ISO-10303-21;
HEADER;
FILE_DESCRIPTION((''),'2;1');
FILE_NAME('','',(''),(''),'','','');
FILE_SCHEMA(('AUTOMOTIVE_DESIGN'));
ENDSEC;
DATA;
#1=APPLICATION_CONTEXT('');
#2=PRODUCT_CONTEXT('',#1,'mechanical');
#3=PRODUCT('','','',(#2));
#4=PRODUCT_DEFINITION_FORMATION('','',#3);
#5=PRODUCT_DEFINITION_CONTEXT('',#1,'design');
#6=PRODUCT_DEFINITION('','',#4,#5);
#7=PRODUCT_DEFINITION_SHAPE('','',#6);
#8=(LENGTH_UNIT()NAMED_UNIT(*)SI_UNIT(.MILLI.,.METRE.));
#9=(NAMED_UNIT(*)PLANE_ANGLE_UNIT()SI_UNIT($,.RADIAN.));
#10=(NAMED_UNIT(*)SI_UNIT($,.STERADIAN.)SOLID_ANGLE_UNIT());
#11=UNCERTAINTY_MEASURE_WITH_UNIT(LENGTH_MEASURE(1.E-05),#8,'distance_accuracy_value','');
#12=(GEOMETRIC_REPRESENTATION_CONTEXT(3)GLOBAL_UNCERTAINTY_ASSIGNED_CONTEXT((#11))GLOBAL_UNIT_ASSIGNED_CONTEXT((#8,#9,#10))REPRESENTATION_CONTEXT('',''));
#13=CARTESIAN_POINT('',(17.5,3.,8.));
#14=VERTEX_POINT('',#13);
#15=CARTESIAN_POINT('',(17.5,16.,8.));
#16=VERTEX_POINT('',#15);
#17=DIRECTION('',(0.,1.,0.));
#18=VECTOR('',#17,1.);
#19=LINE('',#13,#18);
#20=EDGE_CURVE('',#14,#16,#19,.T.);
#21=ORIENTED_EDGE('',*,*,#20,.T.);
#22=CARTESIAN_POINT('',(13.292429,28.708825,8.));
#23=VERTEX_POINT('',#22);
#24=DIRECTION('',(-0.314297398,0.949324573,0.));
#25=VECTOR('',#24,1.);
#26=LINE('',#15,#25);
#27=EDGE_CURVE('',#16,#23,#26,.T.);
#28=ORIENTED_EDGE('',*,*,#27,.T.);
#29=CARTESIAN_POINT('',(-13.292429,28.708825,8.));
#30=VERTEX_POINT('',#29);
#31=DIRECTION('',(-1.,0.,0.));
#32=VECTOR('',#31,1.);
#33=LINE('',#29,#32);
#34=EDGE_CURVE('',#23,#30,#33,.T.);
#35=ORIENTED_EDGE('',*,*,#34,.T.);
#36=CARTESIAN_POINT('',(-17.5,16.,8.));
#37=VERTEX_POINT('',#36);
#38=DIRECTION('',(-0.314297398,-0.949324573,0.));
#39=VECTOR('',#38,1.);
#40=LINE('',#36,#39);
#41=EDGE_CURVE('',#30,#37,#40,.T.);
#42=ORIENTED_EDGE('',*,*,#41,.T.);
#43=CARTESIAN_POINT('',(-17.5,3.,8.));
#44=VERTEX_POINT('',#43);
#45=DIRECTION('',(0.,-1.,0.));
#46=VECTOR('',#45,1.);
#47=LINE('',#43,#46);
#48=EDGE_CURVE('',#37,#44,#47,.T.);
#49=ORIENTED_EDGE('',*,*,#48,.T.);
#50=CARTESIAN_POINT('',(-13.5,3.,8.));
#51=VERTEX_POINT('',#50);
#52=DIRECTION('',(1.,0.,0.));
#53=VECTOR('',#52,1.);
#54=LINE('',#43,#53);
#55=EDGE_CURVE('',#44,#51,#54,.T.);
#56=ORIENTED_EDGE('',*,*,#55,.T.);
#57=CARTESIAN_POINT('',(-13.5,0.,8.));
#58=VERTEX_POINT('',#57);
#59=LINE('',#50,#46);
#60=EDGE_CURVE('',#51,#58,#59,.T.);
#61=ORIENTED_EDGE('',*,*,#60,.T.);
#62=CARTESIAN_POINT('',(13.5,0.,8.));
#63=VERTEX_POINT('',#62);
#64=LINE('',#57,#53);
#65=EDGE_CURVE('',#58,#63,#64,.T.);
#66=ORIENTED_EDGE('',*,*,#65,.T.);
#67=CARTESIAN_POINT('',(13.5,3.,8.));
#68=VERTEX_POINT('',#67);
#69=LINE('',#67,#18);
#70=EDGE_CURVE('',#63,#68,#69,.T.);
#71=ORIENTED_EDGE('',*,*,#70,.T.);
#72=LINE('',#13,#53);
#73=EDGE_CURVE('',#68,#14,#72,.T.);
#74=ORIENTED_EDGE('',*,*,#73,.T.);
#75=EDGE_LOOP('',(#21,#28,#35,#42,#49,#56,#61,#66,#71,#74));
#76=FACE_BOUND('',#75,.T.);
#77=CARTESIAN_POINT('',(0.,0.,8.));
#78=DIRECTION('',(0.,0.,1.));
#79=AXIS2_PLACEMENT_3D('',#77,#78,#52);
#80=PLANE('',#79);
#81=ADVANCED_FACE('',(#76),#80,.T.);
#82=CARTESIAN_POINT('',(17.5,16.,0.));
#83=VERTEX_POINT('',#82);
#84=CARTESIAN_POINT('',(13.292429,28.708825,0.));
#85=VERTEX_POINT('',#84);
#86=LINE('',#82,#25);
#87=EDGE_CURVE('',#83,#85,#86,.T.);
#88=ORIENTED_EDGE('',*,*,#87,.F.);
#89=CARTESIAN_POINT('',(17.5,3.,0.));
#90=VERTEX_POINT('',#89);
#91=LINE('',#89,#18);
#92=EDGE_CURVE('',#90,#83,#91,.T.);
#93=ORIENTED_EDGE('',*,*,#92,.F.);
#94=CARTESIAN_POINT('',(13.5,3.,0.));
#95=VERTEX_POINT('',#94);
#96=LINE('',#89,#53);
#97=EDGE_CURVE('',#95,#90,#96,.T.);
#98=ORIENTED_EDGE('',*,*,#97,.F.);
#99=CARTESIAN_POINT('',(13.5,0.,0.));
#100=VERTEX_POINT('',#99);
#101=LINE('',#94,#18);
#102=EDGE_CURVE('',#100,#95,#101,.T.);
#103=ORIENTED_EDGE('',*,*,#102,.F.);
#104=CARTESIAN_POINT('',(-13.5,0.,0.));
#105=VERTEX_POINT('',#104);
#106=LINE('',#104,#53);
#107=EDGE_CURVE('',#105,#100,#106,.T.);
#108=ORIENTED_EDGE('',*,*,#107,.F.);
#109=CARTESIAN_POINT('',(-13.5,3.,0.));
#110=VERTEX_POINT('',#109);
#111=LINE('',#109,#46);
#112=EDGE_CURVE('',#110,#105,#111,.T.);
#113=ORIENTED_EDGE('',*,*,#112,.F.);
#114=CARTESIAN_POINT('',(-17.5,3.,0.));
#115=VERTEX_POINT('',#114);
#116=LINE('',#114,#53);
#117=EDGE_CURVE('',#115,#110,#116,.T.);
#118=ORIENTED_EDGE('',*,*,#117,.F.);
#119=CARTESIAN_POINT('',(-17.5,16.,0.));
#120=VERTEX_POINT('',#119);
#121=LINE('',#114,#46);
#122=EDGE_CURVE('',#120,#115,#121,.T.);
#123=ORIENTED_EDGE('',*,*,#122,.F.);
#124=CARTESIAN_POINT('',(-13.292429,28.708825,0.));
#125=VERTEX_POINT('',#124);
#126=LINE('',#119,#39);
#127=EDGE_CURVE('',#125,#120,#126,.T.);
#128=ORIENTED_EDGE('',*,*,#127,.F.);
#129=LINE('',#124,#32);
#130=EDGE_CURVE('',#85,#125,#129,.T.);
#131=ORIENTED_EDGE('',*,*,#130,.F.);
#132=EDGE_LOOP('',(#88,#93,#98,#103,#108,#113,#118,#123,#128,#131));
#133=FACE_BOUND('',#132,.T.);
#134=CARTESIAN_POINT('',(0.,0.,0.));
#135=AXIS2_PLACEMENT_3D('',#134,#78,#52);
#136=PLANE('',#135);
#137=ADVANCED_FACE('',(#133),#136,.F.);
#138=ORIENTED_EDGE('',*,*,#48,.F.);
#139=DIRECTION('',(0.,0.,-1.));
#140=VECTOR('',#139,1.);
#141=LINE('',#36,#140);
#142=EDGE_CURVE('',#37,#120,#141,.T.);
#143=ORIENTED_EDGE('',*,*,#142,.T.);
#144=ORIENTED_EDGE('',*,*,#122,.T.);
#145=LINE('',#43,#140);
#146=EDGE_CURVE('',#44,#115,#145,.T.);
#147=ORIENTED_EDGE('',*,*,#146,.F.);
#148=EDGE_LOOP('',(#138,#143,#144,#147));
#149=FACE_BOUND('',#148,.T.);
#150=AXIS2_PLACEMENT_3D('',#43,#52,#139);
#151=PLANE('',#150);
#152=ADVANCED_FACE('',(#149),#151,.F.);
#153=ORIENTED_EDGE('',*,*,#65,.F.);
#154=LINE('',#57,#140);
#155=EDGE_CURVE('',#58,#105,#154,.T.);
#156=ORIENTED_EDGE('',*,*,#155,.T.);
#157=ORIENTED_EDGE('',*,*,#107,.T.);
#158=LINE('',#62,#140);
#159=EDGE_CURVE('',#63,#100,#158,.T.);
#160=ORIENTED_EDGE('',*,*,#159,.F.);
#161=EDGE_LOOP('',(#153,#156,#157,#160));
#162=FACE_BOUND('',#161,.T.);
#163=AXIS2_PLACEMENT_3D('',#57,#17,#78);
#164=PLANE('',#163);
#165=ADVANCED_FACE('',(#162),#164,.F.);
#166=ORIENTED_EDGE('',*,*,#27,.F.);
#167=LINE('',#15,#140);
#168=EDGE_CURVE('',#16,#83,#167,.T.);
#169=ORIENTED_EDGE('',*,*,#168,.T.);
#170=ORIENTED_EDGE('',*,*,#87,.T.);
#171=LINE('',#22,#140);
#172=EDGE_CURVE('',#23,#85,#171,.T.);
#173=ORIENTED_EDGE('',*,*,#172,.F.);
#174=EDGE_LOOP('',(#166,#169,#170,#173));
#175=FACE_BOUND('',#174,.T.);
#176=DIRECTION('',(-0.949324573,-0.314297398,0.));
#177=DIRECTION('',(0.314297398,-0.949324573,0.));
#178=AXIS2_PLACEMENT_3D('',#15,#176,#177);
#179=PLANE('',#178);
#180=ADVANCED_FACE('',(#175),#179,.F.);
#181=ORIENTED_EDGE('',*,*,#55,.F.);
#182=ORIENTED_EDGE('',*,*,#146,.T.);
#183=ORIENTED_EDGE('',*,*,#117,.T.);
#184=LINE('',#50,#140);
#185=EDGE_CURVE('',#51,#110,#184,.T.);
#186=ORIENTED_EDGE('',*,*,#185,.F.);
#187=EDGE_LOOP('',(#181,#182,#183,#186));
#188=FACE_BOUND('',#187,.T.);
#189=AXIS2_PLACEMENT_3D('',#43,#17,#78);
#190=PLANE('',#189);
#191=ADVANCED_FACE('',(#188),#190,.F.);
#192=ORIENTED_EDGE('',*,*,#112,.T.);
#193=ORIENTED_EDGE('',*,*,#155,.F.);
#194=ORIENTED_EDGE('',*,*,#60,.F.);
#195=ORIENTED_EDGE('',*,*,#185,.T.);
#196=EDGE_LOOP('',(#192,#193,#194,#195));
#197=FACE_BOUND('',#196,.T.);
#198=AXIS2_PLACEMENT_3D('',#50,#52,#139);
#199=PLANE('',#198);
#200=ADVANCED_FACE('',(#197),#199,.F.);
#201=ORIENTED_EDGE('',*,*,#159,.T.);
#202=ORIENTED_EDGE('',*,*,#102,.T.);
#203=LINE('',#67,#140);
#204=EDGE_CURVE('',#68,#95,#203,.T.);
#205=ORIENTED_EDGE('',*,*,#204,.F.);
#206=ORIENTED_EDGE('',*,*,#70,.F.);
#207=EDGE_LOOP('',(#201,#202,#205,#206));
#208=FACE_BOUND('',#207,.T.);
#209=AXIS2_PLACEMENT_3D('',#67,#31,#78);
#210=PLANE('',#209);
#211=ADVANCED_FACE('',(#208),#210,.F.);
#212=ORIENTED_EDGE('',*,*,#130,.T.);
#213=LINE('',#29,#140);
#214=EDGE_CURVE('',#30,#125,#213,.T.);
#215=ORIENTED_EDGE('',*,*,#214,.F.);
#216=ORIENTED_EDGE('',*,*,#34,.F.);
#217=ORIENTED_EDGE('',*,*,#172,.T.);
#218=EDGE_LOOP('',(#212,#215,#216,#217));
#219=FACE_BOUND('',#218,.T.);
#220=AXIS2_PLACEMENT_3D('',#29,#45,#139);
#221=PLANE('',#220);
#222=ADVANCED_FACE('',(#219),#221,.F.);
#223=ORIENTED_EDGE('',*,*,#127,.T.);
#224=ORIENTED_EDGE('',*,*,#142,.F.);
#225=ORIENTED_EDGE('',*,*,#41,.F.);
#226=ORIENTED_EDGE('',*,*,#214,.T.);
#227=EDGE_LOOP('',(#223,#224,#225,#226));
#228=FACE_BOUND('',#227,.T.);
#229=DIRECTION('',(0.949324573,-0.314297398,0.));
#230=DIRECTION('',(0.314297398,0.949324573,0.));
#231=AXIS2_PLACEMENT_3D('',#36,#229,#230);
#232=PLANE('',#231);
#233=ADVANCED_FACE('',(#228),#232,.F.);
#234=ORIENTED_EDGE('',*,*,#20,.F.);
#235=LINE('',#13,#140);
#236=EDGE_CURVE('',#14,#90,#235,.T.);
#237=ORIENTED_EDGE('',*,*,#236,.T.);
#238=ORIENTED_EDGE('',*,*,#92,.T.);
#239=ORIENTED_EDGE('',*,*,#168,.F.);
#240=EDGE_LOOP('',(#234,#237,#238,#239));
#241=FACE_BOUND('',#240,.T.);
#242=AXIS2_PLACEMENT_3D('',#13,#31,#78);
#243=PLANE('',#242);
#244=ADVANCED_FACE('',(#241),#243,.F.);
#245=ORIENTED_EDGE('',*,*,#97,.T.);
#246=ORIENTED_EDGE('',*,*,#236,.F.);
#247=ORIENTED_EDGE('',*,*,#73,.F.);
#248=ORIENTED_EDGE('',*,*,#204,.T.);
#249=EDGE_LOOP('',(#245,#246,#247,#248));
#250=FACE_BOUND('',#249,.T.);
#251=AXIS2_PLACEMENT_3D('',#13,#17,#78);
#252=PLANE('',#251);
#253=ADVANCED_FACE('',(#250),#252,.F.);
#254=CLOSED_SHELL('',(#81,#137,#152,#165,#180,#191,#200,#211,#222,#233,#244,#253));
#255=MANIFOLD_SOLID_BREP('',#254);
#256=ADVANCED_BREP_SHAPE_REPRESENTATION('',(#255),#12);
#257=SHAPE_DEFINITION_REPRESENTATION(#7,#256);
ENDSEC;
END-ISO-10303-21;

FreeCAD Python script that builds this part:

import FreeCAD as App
import Part
import Sketcher
from FreeCAD import Vector

doc = App.newDocument("Part")
body = doc.addObject("PartDesign::Body", "Body")

# Sketch on XY plane
sketch1 = body.newObject("Sketcher::SketchObject", "Sketch")
sketch1.AttachmentSupport = (doc.getObject("XY_Plane"), [""])
sketch1.MapMode = "FlatFace"
sketch1.addGeometry([
    Part.LineSegment(Vector(-13.5, 0, 0), Vector(13.5, 0, 0)),  # 0
    Part.LineSegment(Vector(13.5, 0, 0), Vector(13.5, 3, 0)),  # 1
    Part.LineSegment(Vector(13.5, 3, 0), Vector(17.5, 3, 0)),  # 2
    Part.LineSegment(Vector(17.5, 3, 0), Vector(17.5, 16, 0)),  # 3
    Part.LineSegment(Vector(17.5, 16, 0), Vector(13.3, 28.7, 0)),  # 4
    Part.LineSegment(Vector(13.3, 28.7, 0), Vector(-13.3, 28.7, 0)),  # 5
    Part.LineSegment(Vector(-13.3, 28.7, 0), Vector(-17.5, 16, 0)),  # 6
    Part.LineSegment(Vector(-17.5, 16, 0), Vector(-17.5, 3, 0)),  # 7
    Part.LineSegment(Vector(-17.5, 3, 0), Vector(-13.5, 3, 0)),  # 8
    Part.LineSegment(Vector(-13.5, 3, 0), Vector(-13.5, 0, 0)),  # 9
], False)
sketch1.addConstraint([
    Sketcher.Constraint("Coincident", 0, 2, 1, 1),
    Sketcher.Constraint("Coincident", 1, 2, 2, 1),
    Sketcher.Constraint("Coincident", 2, 2, 3, 1),
    Sketcher.Constraint("Coincident", 3, 2, 4, 1),
    Sketcher.Constraint("Coincident", 4, 2, 5, 1),
    Sketcher.Constraint("Coincident", 5, 2, 6, 1),
    Sketcher.Constraint("Coincident", 6, 2, 7, 1),
    Sketcher.Constraint("Coincident", 7, 2, 8, 1),
    Sketcher.Constraint("Coincident", 8, 2, 9, 1),
    Sketcher.Constraint("Coincident", 9, 2, 0, 1),
    Sketcher.Constraint("Horizontal", 0),
    Sketcher.Constraint("Vertical", 1),
    Sketcher.Constraint("Horizontal", 2),
    Sketcher.Constraint("Vertical", 3),
    Sketcher.Constraint("Horizontal", 5),
    Sketcher.Constraint("Vertical", 7),
    Sketcher.Constraint("Horizontal", 8),
    Sketcher.Constraint("Vertical", 9),
    Sketcher.Constraint("Symmetric", 0, 2, 9, 2, -1, 1),
    Sketcher.Constraint("Symmetric", 3, 2, 6, 2, -2),
    Sketcher.Constraint("Horizontal", 2, 2, 7, 2),
    Sketcher.Constraint("Equal", 4, 6),
    Sketcher.Constraint("DistanceX", 0, 1, 0, 2, 27.0),
    Sketcher.Constraint("DistanceX", 2, 1, 2, 2, 4.0),
    Sketcher.Constraint("DistanceY", 1, 1, 1, 2, 3.0),
    Sketcher.Constraint("DistanceY", 3, 1, 3, 2, 13.0),
    Sketcher.Constraint("DistanceX", 5, 2, 5, 1, 26.584858),
    Sketcher.Constraint("Distance", 4, 13.387228),
])
pad1 = body.newObject("PartDesign::Pad", "Pad")
pad1.Profile = sketch1
pad1.Length = 8

doc.recompute()
